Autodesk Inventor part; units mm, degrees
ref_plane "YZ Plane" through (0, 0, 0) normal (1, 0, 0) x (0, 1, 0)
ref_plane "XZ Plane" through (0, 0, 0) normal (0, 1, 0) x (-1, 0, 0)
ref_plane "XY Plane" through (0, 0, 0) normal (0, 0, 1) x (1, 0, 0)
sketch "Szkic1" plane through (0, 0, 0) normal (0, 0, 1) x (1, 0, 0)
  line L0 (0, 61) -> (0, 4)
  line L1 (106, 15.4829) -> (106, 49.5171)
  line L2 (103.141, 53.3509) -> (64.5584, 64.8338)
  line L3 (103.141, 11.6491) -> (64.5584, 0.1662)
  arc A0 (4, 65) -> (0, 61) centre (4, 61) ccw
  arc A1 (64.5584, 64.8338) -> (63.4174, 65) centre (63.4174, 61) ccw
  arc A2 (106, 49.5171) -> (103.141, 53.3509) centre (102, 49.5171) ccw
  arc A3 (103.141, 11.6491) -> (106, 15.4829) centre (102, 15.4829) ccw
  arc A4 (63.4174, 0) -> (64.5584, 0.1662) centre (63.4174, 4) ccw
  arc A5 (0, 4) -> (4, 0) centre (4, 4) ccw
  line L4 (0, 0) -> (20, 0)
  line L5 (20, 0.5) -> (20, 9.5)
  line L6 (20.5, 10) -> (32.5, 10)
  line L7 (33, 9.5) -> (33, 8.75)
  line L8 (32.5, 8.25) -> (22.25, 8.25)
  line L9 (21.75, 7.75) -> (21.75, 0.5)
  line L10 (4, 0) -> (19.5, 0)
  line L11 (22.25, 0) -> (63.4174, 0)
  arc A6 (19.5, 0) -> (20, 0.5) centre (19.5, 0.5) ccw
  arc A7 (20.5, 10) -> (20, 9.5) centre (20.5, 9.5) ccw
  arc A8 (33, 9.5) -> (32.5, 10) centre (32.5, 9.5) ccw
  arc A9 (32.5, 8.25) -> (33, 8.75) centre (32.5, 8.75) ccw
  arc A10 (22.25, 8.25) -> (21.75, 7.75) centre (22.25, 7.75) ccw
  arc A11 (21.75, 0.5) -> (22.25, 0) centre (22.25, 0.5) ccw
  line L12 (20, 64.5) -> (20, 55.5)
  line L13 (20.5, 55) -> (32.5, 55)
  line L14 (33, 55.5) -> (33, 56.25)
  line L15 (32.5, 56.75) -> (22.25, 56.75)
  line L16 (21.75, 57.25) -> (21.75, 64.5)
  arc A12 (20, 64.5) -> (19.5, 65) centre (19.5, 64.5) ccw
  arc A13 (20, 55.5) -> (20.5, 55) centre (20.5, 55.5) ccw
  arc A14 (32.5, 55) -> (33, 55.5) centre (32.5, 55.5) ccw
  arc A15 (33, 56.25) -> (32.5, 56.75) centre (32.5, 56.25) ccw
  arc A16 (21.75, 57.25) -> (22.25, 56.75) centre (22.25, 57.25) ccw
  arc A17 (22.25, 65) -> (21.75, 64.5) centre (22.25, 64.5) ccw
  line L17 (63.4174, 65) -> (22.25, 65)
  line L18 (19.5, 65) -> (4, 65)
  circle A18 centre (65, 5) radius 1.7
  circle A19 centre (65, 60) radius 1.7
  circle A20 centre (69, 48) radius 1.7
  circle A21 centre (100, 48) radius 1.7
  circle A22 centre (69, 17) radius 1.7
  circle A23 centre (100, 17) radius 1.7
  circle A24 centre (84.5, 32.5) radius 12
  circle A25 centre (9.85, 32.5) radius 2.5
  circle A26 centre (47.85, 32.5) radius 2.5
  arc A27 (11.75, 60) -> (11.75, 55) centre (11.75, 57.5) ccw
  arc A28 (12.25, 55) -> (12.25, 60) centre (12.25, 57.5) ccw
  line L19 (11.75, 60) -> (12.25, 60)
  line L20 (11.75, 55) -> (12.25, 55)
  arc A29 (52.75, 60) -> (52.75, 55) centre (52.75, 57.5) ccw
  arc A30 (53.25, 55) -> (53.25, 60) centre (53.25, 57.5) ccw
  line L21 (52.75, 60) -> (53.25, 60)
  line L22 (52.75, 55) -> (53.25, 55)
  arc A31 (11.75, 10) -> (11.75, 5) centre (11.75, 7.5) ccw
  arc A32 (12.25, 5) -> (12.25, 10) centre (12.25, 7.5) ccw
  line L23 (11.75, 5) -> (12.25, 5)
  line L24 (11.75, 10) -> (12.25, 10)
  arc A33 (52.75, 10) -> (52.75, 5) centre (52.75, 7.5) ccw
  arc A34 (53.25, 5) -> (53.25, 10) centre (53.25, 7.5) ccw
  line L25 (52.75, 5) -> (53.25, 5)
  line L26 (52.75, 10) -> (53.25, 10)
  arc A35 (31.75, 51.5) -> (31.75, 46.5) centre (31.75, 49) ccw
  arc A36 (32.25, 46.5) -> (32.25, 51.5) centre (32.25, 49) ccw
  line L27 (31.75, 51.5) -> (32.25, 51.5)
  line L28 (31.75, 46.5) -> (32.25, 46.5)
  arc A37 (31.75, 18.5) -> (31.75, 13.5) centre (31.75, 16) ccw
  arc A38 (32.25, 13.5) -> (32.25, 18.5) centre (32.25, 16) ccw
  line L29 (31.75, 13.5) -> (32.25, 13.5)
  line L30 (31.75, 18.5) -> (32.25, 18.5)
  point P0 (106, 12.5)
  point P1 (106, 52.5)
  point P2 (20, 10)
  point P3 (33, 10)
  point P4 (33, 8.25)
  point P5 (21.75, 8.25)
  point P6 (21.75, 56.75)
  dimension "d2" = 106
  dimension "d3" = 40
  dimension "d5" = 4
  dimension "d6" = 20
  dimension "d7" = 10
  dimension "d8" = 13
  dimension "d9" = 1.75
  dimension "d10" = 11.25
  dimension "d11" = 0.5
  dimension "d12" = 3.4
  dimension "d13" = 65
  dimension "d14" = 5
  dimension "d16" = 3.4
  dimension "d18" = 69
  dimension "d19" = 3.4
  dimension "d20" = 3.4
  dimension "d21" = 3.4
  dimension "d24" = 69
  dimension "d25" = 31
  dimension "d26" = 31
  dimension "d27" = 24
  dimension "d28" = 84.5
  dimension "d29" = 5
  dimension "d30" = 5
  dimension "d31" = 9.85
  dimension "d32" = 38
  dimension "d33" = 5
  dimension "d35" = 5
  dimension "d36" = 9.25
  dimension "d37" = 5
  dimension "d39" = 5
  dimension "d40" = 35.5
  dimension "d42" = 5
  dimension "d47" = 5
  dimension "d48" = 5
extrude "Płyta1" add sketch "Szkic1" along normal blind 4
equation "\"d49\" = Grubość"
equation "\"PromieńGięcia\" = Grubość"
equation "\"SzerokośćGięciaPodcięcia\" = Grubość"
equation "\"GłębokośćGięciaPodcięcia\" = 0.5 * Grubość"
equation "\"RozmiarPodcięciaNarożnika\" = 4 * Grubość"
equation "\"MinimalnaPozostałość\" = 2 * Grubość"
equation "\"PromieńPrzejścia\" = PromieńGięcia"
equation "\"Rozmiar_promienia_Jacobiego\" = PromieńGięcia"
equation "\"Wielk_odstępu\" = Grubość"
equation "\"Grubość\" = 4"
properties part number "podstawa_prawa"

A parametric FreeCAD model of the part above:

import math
import FreeCAD as App
import Part
import Sketcher

V = App.Vector
Q = App.Units.Quantity

doc = App.newDocument("Part")
params = doc.addObject("Spreadsheet::Sheet", "Params")
for row, (alias, value) in enumerate([
    ("sketch1_diameter", "5 mm"),
    ("sketch1_diameter2", "24 mm"),
    ("sketch1_radius", "4 mm"),
    ("sketch1_diameter3", "3.4 mm"),
    ("sketch1_radius2", "0.5 mm"),
    ("pad1_length", "4 mm"),
], start=1):
    params.set(f"A{row}", alias)
    params.set(f"B{row}", "=" + value)
    params.setAlias(f"B{row}", alias)

body = doc.addObject("PartDesign::Body", "Body")

# Sketch on XY plane
sketch1 = doc.addObject("Sketcher::SketchObject", "Sketch")
body.addObject(sketch1)
sketch1.AttachmentSupport = (doc.XY_Plane, [""])
sketch1.MapMode = "FlatFace"
sketch1.addGeometry(Part.ArcOfCircle(Part.Circle(V(4, 61, 0), V(0, 0, 1), 4), math.radians(90), math.radians(180)), False)
sketch1.addGeometry(Part.LineSegment(V(0, 61, 0), V(0, 4, 0)), False)
sketch1.addGeometry(Part.ArcOfCircle(Part.Circle(V(4, 4, 0), V(0, 0, 1), 4), math.radians(180), math.radians(270)), False)
sketch1.addGeometry(Part.LineSegment(V(4, 0, 0), V(19.5, 0, 0)), False)
sketch1.addGeometry(Part.ArcOfCircle(Part.Circle(V(19.5, 0.5, 0), V(0, 0, 1), 0.5), math.radians(-90), math.radians(0)), False)
sketch1.addGeometry(Part.LineSegment(V(20, 0.5, 0), V(20, 9.5, 0)), False)
sketch1.addGeometry(Part.ArcOfCircle(Part.Circle(V(20.5, 9.5, 0), V(0, 0, 1), 0.5), math.radians(90), math.radians(180)), False)
sketch1.addGeometry(Part.LineSegment(V(20.5, 10, 0), V(32.5, 10, 0)), False)
sketch1.addGeometry(Part.ArcOfCircle(Part.Circle(V(32.5, 9.5, 0), V(0, 0, 1), 0.5), math.radians(0), math.radians(90)), False)
sketch1.addGeometry(Part.LineSegment(V(33, 9.5, 0), V(33, 8.8, 0)), False)
sketch1.addGeometry(Part.ArcOfCircle(Part.Circle(V(32.5, 8.8, 0), V(0, 0, 1), 0.5), math.radians(-90), math.radians(0)), False)
sketch1.addGeometry(Part.LineSegment(V(32.5, 8.2, 0), V(22.2, 8.2, 0)), False)
sketch1.addGeometry(Part.ArcOfCircle(Part.Circle(V(22.2, 7.8, 0), V(0, 0, 1), 0.5), math.radians(90), math.radians(180)), False)
sketch1.addGeometry(Part.LineSegment(V(21.8, 7.8, 0), V(21.8, 0.5, 0)), False)
sketch1.addGeometry(Part.ArcOfCircle(Part.Circle(V(22.2, 0.5, 0), V(0, 0, 1), 0.5), math.radians(180), math.radians(270)), False)
sketch1.addGeometry(Part.LineSegment(V(22.2, 0, 0), V(63.4, 0, 0)), False)
sketch1.addGeometry(Part.ArcOfCircle(Part.Circle(V(63.4, 4, 0), V(0, 0, 1), 4), math.radians(-90), math.radians(-73.43)), False)
sketch1.addGeometry(Part.LineSegment(V(64.6, 0.2, 0), V(103.1, 11.6, 0)), False)
sketch1.addGeometry(Part.ArcOfCircle(Part.Circle(V(102, 15.5, 0), V(0, 0, 1), 4), math.radians(-73), math.radians(0)), False)
sketch1.addGeometry(Part.LineSegment(V(106, 15.5, 0), V(106, 49.5, 0)), False)
sketch1.addGeometry(Part.ArcOfCircle(Part.Circle(V(102, 49.5, 0), V(0, 0, 1), 4), math.radians(0), math.radians(73)), False)
sketch1.addGeometry(Part.LineSegment(V(103.1, 53.4, 0), V(64.6, 64.8, 0)), False)
sketch1.addGeometry(Part.ArcOfCircle(Part.Circle(V(63.4, 61, 0), V(0, 0, 1), 4), math.radians(73.43), math.radians(90)), False)
sketch1.addGeometry(Part.LineSegment(V(63.4, 65, 0), V(22.2, 65, 0)), False)
sketch1.addGeometry(Part.ArcOfCircle(Part.Circle(V(22.2, 64.5, 0), V(0, 0, 1), 0.5), math.radians(90), math.radians(180)), False)
sketch1.addGeometry(Part.LineSegment(V(21.8, 64.5, 0), V(21.8, 57.2, 0)), False)
sketch1.addGeometry(Part.ArcOfCircle(Part.Circle(V(22.2, 57.2, 0), V(0, 0, 1), 0.5), math.radians(180), math.radians(270)), False)
sketch1.addGeometry(Part.LineSegment(V(22.2, 56.8, 0), V(32.5, 56.8, 0)), False)
sketch1.addGeometry(Part.ArcOfCircle(Part.Circle(V(32.5, 56.2, 0), V(0, 0, 1), 0.5), math.radians(0), math.radians(90)), False)
sketch1.addGeometry(Part.LineSegment(V(33, 56.2, 0), V(33, 55.5, 0)), False)
sketch1.addGeometry(Part.ArcOfCircle(Part.Circle(V(32.5, 55.5, 0), V(0, 0, 1), 0.5), math.radians(-90), math.radians(0)), False)
sketch1.addGeometry(Part.LineSegment(V(32.5, 55, 0), V(20.5, 55, 0)), False)
sketch1.addGeometry(Part.ArcOfCircle(Part.Circle(V(20.5, 55.5, 0), V(0, 0, 1), 0.5), math.radians(180), math.radians(270)), False)
sketch1.addGeometry(Part.LineSegment(V(20, 55.5, 0), V(20, 64.5, 0)), False)
sketch1.addGeometry(Part.ArcOfCircle(Part.Circle(V(19.5, 64.5, 0), V(0, 0, 1), 0.5), math.radians(0), math.radians(90)), False)
sketch1.addGeometry(Part.LineSegment(V(19.5, 65, 0), V(4, 65, 0)), False)
sketch1.addGeometry(Part.ArcOfCircle(Part.Circle(V(11.8, 7.5, 0), V(0, 0, 1), 2.5), math.radians(90), math.radians(270)), False)
sketch1.addGeometry(Part.LineSegment(V(11.8, 10, 0), V(12.2, 10, 0)), False)
sketch1.addGeometry(Part.ArcOfCircle(Part.Circle(V(12.2, 7.5, 0), V(0, 0, 1), 2.5), math.radians(-90), math.radians(90)), False)
sketch1.addGeometry(Part.LineSegment(V(12.2, 5, 0), V(11.8, 5, 0)), False)
sketch1.addGeometry(Part.ArcOfCircle(Part.Circle(V(52.8, 7.5, 0), V(0, 0, 1), 2.5), math.radians(90), math.radians(270)), False)
sketch1.addGeometry(Part.LineSegment(V(52.8, 10, 0), V(53.2, 10, 0)), False)
sketch1.addGeometry(Part.ArcOfCircle(Part.Circle(V(53.2, 7.5, 0), V(0, 0, 1), 2.5), math.radians(-90), math.radians(90)), False)
sketch1.addGeometry(Part.LineSegment(V(53.2, 5, 0), V(52.8, 5, 0)), False)
sketch1.addGeometry(Part.ArcOfCircle(Part.Circle(V(31.8, 16, 0), V(0, 0, 1), 2.5), math.radians(90), math.radians(270)), False)
sketch1.addGeometry(Part.LineSegment(V(31.8, 18.5, 0), V(32.2, 18.5, 0)), False)
sketch1.addGeometry(Part.ArcOfCircle(Part.Circle(V(32.2, 16, 0), V(0, 0, 1), 2.5), math.radians(-90), math.radians(90)), False)
sketch1.addGeometry(Part.LineSegment(V(32.2, 13.5, 0), V(31.8, 13.5, 0)), False)
sketch1.addGeometry(Part.Circle(V(65, 5, 0), V(0, 0, 1), 1.7), False)
sketch1.addGeometry(Part.Circle(V(69, 17, 0), V(0, 0, 1), 1.7), False)
sketch1.addGeometry(Part.Circle(V(100, 17, 0), V(0, 0, 1), 1.7), False)
sketch1.addGeometry(Part.Circle(V(9.8, 32.5, 0), V(0, 0, 1), 2.5), False)
sketch1.addGeometry(Part.Circle(V(47.9, 32.5, 0), V(0, 0, 1), 2.5), False)
sketch1.addGeometry(Part.ArcOfCircle(Part.Circle(V(11.8, 57.5, 0), V(0, 0, 1), 2.5), math.radians(90), math.radians(270)), False)
sketch1.addGeometry(Part.LineSegment(V(11.8, 60, 0), V(12.2, 60, 0)), False)
sketch1.addGeometry(Part.ArcOfCircle(Part.Circle(V(12.2, 57.5, 0), V(0, 0, 1), 2.5), math.radians(-90), math.radians(90)), False)
sketch1.addGeometry(Part.LineSegment(V(12.2, 55, 0), V(11.8, 55, 0)), False)
sketch1.addGeometry(Part.ArcOfCircle(Part.Circle(V(31.8, 49, 0), V(0, 0, 1), 2.5), math.radians(90), math.radians(270)), False)
sketch1.addGeometry(Part.LineSegment(V(31.8, 51.5, 0), V(32.2, 51.5, 0)), False)
sketch1.addGeometry(Part.ArcOfCircle(Part.Circle(V(32.2, 49, 0), V(0, 0, 1), 2.5), math.radians(-90), math.radians(90)), False)
sketch1.addGeometry(Part.LineSegment(V(32.2, 46.5, 0), V(31.8, 46.5, 0)), False)
sketch1.addGeometry(Part.ArcOfCircle(Part.Circle(V(52.8, 57.5, 0), V(0, 0, 1), 2.5), math.radians(90), math.radians(270)), False)
sketch1.addGeometry(Part.LineSegment(V(52.8, 60, 0), V(53.2, 60, 0)), False)
sketch1.addGeometry(Part.ArcOfCircle(Part.Circle(V(53.2, 57.5, 0), V(0, 0, 1), 2.5), math.radians(-90), math.radians(90)), False)
sketch1.addGeometry(Part.LineSegment(V(53.2, 55, 0), V(52.8, 55, 0)), False)
sketch1.addGeometry(Part.Circle(V(69, 48, 0), V(0, 0, 1), 1.7), False)
sketch1.addGeometry(Part.Circle(V(84.5, 32.5, 0), V(0, 0, 1), 12), False)
sketch1.addGeometry(Part.Circle(V(100, 48, 0), V(0, 0, 1), 1.7), False)
sketch1.addGeometry(Part.Circle(V(65, 60, 0), V(0, 0, 1), 1.7), False)
sketch1.addConstraint(Sketcher.Constraint("Tangent", 0, 2, 1, 1))
sketch1.addConstraint(Sketcher.Constraint("Tangent", 1, 2, 2, 1))
sketch1.addConstraint(Sketcher.Constraint("Tangent", 2, 2, 3, 1))
sketch1.addConstraint(Sketcher.Constraint("Tangent", 3, 2, 4, 1))
sketch1.addConstraint(Sketcher.Constraint("Tangent", 4, 2, 5, 1))
sketch1.addConstraint(Sketcher.Constraint("Tangent", 5, 2, 6, 2))
sketch1.addConstraint(Sketcher.Constraint("Tangent", 6, 1, 7, 1))
sketch1.addConstraint(Sketcher.Constraint("Tangent", 7, 2, 8, 2))
sketch1.addConstraint(Sketcher.Constraint("Tangent", 8, 1, 9, 1))
sketch1.addConstraint(Sketcher.Constraint("Tangent", 9, 2, 10, 2))
sketch1.addConstraint(Sketcher.Constraint("Tangent", 10, 1, 11, 1))
sketch1.addConstraint(Sketcher.Constraint("Tangent", 11, 2, 12, 1))
sketch1.addConstraint(Sketcher.Constraint("Tangent", 12, 2, 13, 1))
sketch1.addConstraint(Sketcher.Constraint("Tangent", 13, 2, 14, 1))
sketch1.addConstraint(Sketcher.Constraint("Tangent", 14, 2, 15, 1))
sketch1.addConstraint(Sketcher.Constraint("Tangent", 15, 2, 16, 1))
sketch1.addConstraint(Sketcher.Constraint("Tangent", 16, 2, 17, 1))
sketch1.addConstraint(Sketcher.Constraint("Tangent", 17, 2, 18, 1))
sketch1.addConstraint(Sketcher.Constraint("Tangent", 18, 2, 19, 1))
sketch1.addConstraint(Sketcher.Constraint("Tangent", 19, 2, 20, 1))
sketch1.addConstraint(Sketcher.Constraint("Tangent", 20, 2, 21, 1))
sketch1.addConstraint(Sketcher.Constraint("Tangent", 21, 2, 22, 1))
sketch1.addConstraint(Sketcher.Constraint("Tangent", 22, 2, 23, 1))
sketch1.addConstraint(Sketcher.Constraint("Tangent", 23, 2, 24, 1))
sketch1.addConstraint(Sketcher.Constraint("Tangent", 24, 2, 25, 1))
sketch1.addConstraint(Sketcher.Constraint("Tangent", 25, 2, 26, 1))
sketch1.addConstraint(Sketcher.Constraint("Tangent", 26, 2, 27, 1))
sketch1.addConstraint(Sketcher.Constraint("Tangent", 27, 2, 28, 2))
sketch1.addConstraint(Sketcher.Constraint("Tangent", 28, 1, 29, 1))
sketch1.addConstraint(Sketcher.Constraint("Tangent", 29, 2, 30, 2))
sketch1.addConstraint(Sketcher.Constraint("Tangent", 30, 1, 31, 1))
sketch1.addConstraint(Sketcher.Constraint("Tangent", 31, 2, 32, 2))
sketch1.addConstraint(Sketcher.Constraint("Tangent", 32, 1, 33, 1))
sketch1.addConstraint(Sketcher.Constraint("Tangent", 33, 2, 34, 1))
sketch1.addConstraint(Sketcher.Constraint("Tangent", 34, 2, 35, 1))
sketch1.addConstraint(Sketcher.Constraint("Tangent", 35, 2, 0, 1))
sketch1.addConstraint(Sketcher.Constraint("Tangent", 36, 1, 37, 1))
sketch1.addConstraint(Sketcher.Constraint("Tangent", 37, 2, 38, 2))
sketch1.addConstraint(Sketcher.Constraint("Tangent", 38, 1, 39, 1))
sketch1.addConstraint(Sketcher.Constraint("Tangent", 39, 2, 36, 2))
sketch1.addConstraint(Sketcher.Constraint("Tangent", 40, 1, 41, 1))
sketch1.addConstraint(Sketcher.Constraint("Tangent", 41, 2, 42, 2))
sketch1.addConstraint(Sketcher.Constraint("Tangent", 42, 1, 43, 1))
sketch1.addConstraint(Sketcher.Constraint("Tangent", 43, 2, 40, 2))
sketch1.addConstraint(Sketcher.Constraint("Tangent", 44, 1, 45, 1))
sketch1.addConstraint(Sketcher.Constraint("Tangent", 45, 2, 46, 2))
sketch1.addConstraint(Sketcher.Constraint("Tangent", 46, 1, 47, 1))
sketch1.addConstraint(Sketcher.Constraint("Tangent", 47, 2, 44, 2))
sketch1.addConstraint(Sketcher.Constraint("Tangent", 53, 1, 54, 1))
sketch1.addConstraint(Sketcher.Constraint("Tangent", 54, 2, 55, 2))
sketch1.addConstraint(Sketcher.Constraint("Tangent", 55, 1, 56, 1))
sketch1.addConstraint(Sketcher.Constraint("Tangent", 56, 2, 53, 2))
sketch1.addConstraint(Sketcher.Constraint("Tangent", 57, 1, 58, 1))
sketch1.addConstraint(Sketcher.Constraint("Tangent", 58, 2, 59, 2))
sketch1.addConstraint(Sketcher.Constraint("Tangent", 59, 1, 60, 1))
sketch1.addConstraint(Sketcher.Constraint("Tangent", 60, 2, 57, 2))
sketch1.addConstraint(Sketcher.Constraint("Tangent", 61, 1, 62, 1))
sketch1.addConstraint(Sketcher.Constraint("Tangent", 62, 2, 63, 2))
sketch1.addConstraint(Sketcher.Constraint("Tangent", 63, 1, 64, 1))
sketch1.addConstraint(Sketcher.Constraint("Tangent", 64, 2, 61, 2))
sketch1.addConstraint(Sketcher.Constraint("Vertical", 1))
sketch1.addConstraint(Sketcher.Constraint("Horizontal", 3))
sketch1.addConstraint(Sketcher.Constraint("Vertical", 5))
sketch1.addConstraint(Sketcher.Constraint("Horizontal", 7))
sketch1.addConstraint(Sketcher.Constraint("Vertical", 9))
sketch1.addConstraint(Sketcher.Constraint("Horizontal", 11))
sketch1.addConstraint(Sketcher.Constraint("Vertical", 13))
sketch1.addConstraint(Sketcher.Constraint("Horizontal", 15))
sketch1.addConstraint(Sketcher.Constraint("Vertical", 19))
sketch1.addConstraint(Sketcher.Constraint("Horizontal", 23))
sketch1.addConstraint(Sketcher.Constraint("Vertical", 25))
sketch1.addConstraint(Sketcher.Constraint("Horizontal", 27))
sketch1.addConstraint(Sketcher.Constraint("Vertical", 29))
sketch1.addConstraint(Sketcher.Constraint("Horizontal", 31))
sketch1.addConstraint(Sketcher.Constraint("Vertical", 33))
sketch1.addConstraint(Sketcher.Constraint("Horizontal", 35))
sketch1.addConstraint(Sketcher.Constraint("Horizontal", 37))
sketch1.addConstraint(Sketcher.Constraint("Horizontal", 39))
sketch1.addConstraint(Sketcher.Constraint("Horizontal", 41))
sketch1.addConstraint(Sketcher.Constraint("Horizontal", 43))
sketch1.addConstraint(Sketcher.Constraint("Horizontal", 45))
sketch1.addConstraint(Sketcher.Constraint("Horizontal", 47))
sketch1.addConstraint(Sketcher.Constraint("Horizontal", 54))
sketch1.addConstraint(Sketcher.Constraint("Horizontal", 56))
sketch1.addConstraint(Sketcher.Constraint("Horizontal", 58))
sketch1.addConstraint(Sketcher.Constraint("Horizontal", 60))
sketch1.addConstraint(Sketcher.Constraint("Horizontal", 62))
sketch1.addConstraint(Sketcher.Constraint("Horizontal", 64))
sketch1.addConstraint(Sketcher.Constraint("Equal", 0, 2))
sketch1.addConstraint(Sketcher.Constraint("Equal", 4, 6))
sketch1.addConstraint(Sketcher.Constraint("Equal", 6, 8))
sketch1.addConstraint(Sketcher.Constraint("Equal", 8, 10))
sketch1.addConstraint(Sketcher.Constraint("Equal", 10, 12))
sketch1.addConstraint(Sketcher.Constraint("Equal", 12, 14))
sketch1.addConstraint(Sketcher.Constraint("Equal", 2, 16))
sketch1.addConstraint(Sketcher.Constraint("Equal", 16, 18))
sketch1.addConstraint(Sketcher.Constraint("Equal", 18, 20))
sketch1.addConstraint(Sketcher.Constraint("Equal", 20, 22))
sketch1.addConstraint(Sketcher.Constraint("Equal", 14, 24))
sketch1.addConstraint(Sketcher.Constraint("Equal", 24, 26))
sketch1.addConstraint(Sketcher.Constraint("Equal", 26, 28))
sketch1.addConstraint(Sketcher.Constraint("Equal", 28, 30))
sketch1.addConstraint(Sketcher.Constraint("Equal", 30, 32))
sketch1.addConstraint(Sketcher.Constraint("Equal", 32, 34))
sketch1.addConstraint(Sketcher.Constraint("Equal", 38, 40))
sketch1.addConstraint(Sketcher.Constraint("Equal", 42, 44))
sketch1.addConstraint(Sketcher.Constraint("Equal", 48, 49))
sketch1.addConstraint(Sketcher.Constraint("Equal", 49, 50))
sketch1.addConstraint(Sketcher.Constraint("Equal", 46, 51))
sketch1.addConstraint(Sketcher.Constraint("Equal", 51, 52))
sketch1.addConstraint(Sketcher.Constraint("Equal", 52, 53))
sketch1.addConstraint(Sketcher.Constraint("Equal", 55, 57))
sketch1.addConstraint(Sketcher.Constraint("Equal", 59, 61))
sketch1.addConstraint(Sketcher.Constraint("Equal", 50, 65))
sketch1.addConstraint(Sketcher.Constraint("Equal", 65, 67))
sketch1.addConstraint(Sketcher.Constraint("Equal", 67, 68))
sketch1.addConstraint(Sketcher.Constraint("PointOnObject", 0, 2, -2))
sketch1.addConstraint(Sketcher.Constraint("PointOnObject", 2, 2, -1))
sketch1.addConstraint(Sketcher.Constraint("PointOnObject", 14, 2, -1))
sketch1.addConstraint(Sketcher.Constraint("Horizontal", 0, 3, 22, 3))
sketch1.addConstraint(Sketcher.Constraint("Horizontal", 38, 3, 40, 3))
sketch1.addConstraint(Sketcher.Constraint("Horizontal", 49, 3, 50, 3))
sketch1.addConstraint(Sketcher.Constraint("Horizontal", 51, 3, 52, 3))
sketch1.addConstraint(Sketcher.Constraint("Horizontal", 55, 3, 61, 3))
sketch1.addConstraint(Sketcher.Constraint("Horizontal", 52, 3, 66, 3))
sketch1.addConstraint(Sketcher.Constraint("Horizontal", 65, 3, 67, 3))
sketch1.addConstraint(Sketcher.Constraint("Horizontal", 7, 2, 36, 1))
sketch1.addConstraint(Sketcher.Constraint("Horizontal", 48, 3, 38, 1))
sketch1.addConstraint(Sketcher.Constraint("Horizontal", 68, 3, 53, 1))
sketch1.addConstraint(Sketcher.Constraint("Horizontal", 31, 2, 55, 1))
sketch1.addConstraint(Sketcher.Constraint("Vertical", 16, 3, 22, 3))
sketch1.addConstraint(Sketcher.Constraint("Vertical", 14, 3, 24, 3))
sketch1.addConstraint(Sketcher.Constraint("Vertical", 10, 3, 28, 3))
sketch1.addConstraint(Sketcher.Constraint("Vertical", 6, 3, 32, 3))
sketch1.addConstraint(Sketcher.Constraint("Vertical", 36, 3, 53, 3))
sketch1.addConstraint(Sketcher.Constraint("Vertical", 38, 3, 55, 3))
sketch1.addConstraint(Sketcher.Constraint("Vertical", 44, 3, 57, 3))
sketch1.addConstraint(Sketcher.Constraint("Vertical", 46, 3, 59, 3))
sketch1.addConstraint(Sketcher.Constraint("Vertical", 40, 3, 61, 3))
sketch1.addConstraint(Sketcher.Constraint("Vertical", 42, 3, 63, 3))
sketch1.addConstraint(Sketcher.Constraint("Vertical", 49, 3, 65, 3))
sketch1.addConstraint(Sketcher.Constraint("Vertical", 50, 3, 67, 3))
sketch1.addConstraint(Sketcher.Constraint("Vertical", 48, 3, 68, 3))
sketch1.addConstraint(Sketcher.Constraint("Vertical", 17, 2, 20, 2))
sketch1.addConstraint(Sketcher.Constraint("Equal", 39, 41))
sketch1.addConstraint(Sketcher.Constraint("Equal", 43, 45))
sketch1.addConstraint(Sketcher.Constraint("Equal", 13, 25))
sketch1.addConstraint(Sketcher.Constraint("Equal", 9, 29))
sketch1.addConstraint(Sketcher.Constraint("Diameter", 51, Q("5 mm")))
sketch1.addConstraint(Sketcher.Constraint("Diameter", 66, Q("24 mm")))
sketch1.addConstraint(Sketcher.Constraint("Radius", 0, Q("4 mm")))
sketch1.addConstraint(Sketcher.Constraint("Diameter", 48, Q("3.4 mm")))
sketch1.addConstraint(Sketcher.Constraint("Radius", 4, Q("0.5 mm")))
sketch1.addConstraint(Sketcher.Constraint("DistanceX", 37, 1, 37, 2, Q("0.5 mm")))
sketch1.addConstraint(Sketcher.Constraint("DistanceX", -1, 1, 48, 3, Q("65 mm")))
sketch1.addConstraint(Sketcher.Constraint("DistanceY", -1, 1, 48, 3, Q("5 mm")))
sketch1.addConstraint(Sketcher.Constraint("DistanceX", -1, 1, 49, 3, Q("69 mm")))
sketch1.addConstraint(Sketcher.Constraint("DistanceX", -1, 1, 4, 2, Q("20 mm")))
sketch1.addConstraint(Sketcher.Constraint("DistanceX", -1, 1, 18, 2, Q("106 mm")))
sketch1.addConstraint(Sketcher.Constraint("DistanceY", -1, 1, 22, 2, Q("65 mm")))
sketch1.addConstraint(Sketcher.Constraint("DistanceX", -1, 1, 66, 3, Q("84.5 mm")))
sketch1.addConstraint(Sketcher.Constraint("DistanceX", 7, 1, 7, 2, Q("12 mm")))
sketch1.addConstraint(Sketcher.Constraint("DistanceX", -1, 1, 51, 3, Q("9.85 mm")))
sketch1.addConstraint(Sketcher.Constraint("DistanceY", -1, 1, 44, 3, Q("16 mm")))
sketch1.addConstraint(Sketcher.Constraint("DistanceY", -1, 1, 49, 3, Q("17 mm")))
sketch1.addConstraint(Sketcher.Constraint("DistanceX", -1, 1, 50, 3, Q("100 mm")))
sketch1.addConstraint(Sketcher.Constraint("DistanceY", -1, 1, 57, 3, Q("49 mm")))
sketch1.addConstraint(Sketcher.Constraint("DistanceY", -1, 1, 65, 3, Q("48 mm")))
sketch1.addConstraint(Sketcher.Constraint("DistanceX", 11, 2, 11, 1, Q("10.25 mm")))
sketch1.addConstraint(Sketcher.Constraint("DistanceY", 9, 2, 9, 1, Q("0.75 mm")))
sketch1.addConstraint(Sketcher.Constraint("DistanceY", -1, 1, 51, 3, Q("32.5 mm")))
sketch1.addConstraint(Sketcher.Constraint("DistanceX", -1, 1, 36, 3, Q("11.75 mm")))
sketch1.addConstraint(Sketcher.Constraint("DistanceX", -1, 1, 40, 3, Q("52.75 mm")))
sketch1.addConstraint(Sketcher.Constraint("DistanceX", -1, 1, 44, 3, Q("31.75 mm")))
sketch1.addConstraint(Sketcher.Constraint("DistanceX", -1, 1, 52, 3, Q("47.85 mm")))
sketch1.addConstraint(Sketcher.Constraint("Distance", 17, Q("40.255 mm")))
sketch1.addConstraint(Sketcher.Constraint("DistanceX", 15, 1, 15, 2, Q("41.1674 mm")))
sketch1.setExpression("Constraints[148]", "Params.sketch1_diameter")
sketch1.setExpression("Constraints[149]", "Params.sketch1_diameter2")
sketch1.setExpression("Constraints[150]", "Params.sketch1_radius")
sketch1.setExpression("Constraints[151]", "Params.sketch1_diameter3")
sketch1.setExpression("Constraints[152]", "Params.sketch1_radius2")
pad1 = doc.addObject("PartDesign::Pad", "Pad")
body.addObject(pad1)
pad1.Profile = sketch1
pad1.setExpression("Length", "Params.pad1_length")

doc.recompute()
